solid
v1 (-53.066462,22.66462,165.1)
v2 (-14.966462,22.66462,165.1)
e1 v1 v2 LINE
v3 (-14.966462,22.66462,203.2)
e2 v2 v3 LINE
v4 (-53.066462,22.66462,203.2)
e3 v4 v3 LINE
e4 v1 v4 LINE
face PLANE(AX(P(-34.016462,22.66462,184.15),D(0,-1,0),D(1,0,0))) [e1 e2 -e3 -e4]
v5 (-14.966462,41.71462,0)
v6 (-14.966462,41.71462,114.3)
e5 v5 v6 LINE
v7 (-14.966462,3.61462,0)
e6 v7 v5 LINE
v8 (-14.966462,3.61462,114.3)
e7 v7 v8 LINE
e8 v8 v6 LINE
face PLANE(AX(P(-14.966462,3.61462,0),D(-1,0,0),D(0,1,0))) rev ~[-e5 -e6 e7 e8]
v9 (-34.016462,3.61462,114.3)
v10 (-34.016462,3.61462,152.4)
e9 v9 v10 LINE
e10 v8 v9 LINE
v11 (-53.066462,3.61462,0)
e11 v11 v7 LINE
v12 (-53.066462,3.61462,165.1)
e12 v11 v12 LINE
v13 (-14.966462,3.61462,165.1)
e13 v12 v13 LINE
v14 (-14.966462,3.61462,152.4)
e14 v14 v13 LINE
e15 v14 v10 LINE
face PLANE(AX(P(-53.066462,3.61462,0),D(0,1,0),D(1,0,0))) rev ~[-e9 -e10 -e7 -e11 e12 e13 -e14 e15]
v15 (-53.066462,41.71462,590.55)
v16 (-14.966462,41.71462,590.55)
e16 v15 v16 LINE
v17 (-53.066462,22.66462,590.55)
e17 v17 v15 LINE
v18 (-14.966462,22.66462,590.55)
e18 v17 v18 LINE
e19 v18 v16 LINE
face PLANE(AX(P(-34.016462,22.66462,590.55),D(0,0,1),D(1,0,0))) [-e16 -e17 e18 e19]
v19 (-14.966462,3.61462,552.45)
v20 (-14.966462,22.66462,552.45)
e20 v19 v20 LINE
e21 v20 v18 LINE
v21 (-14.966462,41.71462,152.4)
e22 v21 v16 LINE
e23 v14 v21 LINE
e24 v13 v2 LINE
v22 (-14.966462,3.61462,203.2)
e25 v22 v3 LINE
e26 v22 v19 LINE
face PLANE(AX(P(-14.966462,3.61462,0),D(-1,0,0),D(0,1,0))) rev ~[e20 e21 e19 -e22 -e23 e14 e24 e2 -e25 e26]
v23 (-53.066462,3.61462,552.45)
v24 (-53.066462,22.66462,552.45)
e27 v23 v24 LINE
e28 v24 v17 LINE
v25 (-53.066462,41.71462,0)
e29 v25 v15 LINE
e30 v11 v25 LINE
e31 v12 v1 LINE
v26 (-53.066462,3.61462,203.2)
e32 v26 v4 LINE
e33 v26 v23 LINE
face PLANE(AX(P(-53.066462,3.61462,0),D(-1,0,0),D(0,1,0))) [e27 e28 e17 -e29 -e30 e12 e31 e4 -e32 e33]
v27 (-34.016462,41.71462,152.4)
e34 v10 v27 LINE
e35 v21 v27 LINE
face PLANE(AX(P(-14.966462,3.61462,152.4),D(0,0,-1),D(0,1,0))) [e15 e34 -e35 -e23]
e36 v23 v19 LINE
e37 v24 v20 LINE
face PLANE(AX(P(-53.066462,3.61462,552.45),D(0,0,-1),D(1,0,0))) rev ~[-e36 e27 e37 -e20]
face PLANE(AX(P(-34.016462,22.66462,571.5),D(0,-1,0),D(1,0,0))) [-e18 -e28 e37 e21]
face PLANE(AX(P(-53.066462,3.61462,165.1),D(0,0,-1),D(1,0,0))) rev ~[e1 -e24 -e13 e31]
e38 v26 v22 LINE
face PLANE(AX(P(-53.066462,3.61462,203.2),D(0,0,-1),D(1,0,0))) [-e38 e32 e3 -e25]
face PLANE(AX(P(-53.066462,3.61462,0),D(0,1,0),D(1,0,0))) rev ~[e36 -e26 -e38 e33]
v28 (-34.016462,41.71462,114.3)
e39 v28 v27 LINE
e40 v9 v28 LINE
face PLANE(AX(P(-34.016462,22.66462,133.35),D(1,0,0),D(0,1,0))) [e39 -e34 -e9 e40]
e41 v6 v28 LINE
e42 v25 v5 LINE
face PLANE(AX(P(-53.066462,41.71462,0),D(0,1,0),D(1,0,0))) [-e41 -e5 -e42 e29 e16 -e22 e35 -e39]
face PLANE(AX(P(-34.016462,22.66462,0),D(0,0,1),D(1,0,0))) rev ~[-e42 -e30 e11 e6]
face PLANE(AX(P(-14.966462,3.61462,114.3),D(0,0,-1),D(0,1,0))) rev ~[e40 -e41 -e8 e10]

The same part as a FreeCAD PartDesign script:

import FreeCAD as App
import Part
import Sketcher

V = App.Vector
Q = App.Units.Quantity

doc = App.newDocument("Part")
body = doc.addObject("PartDesign::Body", "Body")

# Sketch on XY plane
sketch1 = body.newObject("Sketcher::SketchObject", "Sketch")
sketch1.AttachmentSupport = (doc.getObject("XY_Plane"), [""])
sketch1.MapMode = "FlatFace"
sketch1.addGeometry(Part.LineSegment(V(-53, 42, 0), V(-53, 4, 0)), False)
sketch1.addGeometry(Part.LineSegment(V(-53, 4, 0), V(-15, 4, 0)), False)
sketch1.addGeometry(Part.LineSegment(V(-15, 4, 0), V(-15, 42, 0)), False)
sketch1.addGeometry(Part.LineSegment(V(-15, 42, 0), V(-53, 42, 0)), False)
sketch1.addConstraint(Sketcher.Constraint("Coincident", 0, 2, 1, 1))
sketch1.addConstraint(Sketcher.Constraint("Coincident", 1, 2, 2, 1))
sketch1.addConstraint(Sketcher.Constraint("Coincident", 2, 2, 3, 1))
sketch1.addConstraint(Sketcher.Constraint("Coincident", 3, 2, 0, 1))
sketch1.addConstraint(Sketcher.Constraint("Vertical", 0))
sketch1.addConstraint(Sketcher.Constraint("Horizontal", 1))
sketch1.addConstraint(Sketcher.Constraint("Vertical", 2))
sketch1.addConstraint(Sketcher.Constraint("Horizontal", 3))
sketch1.addConstraint(Sketcher.Constraint("Equal", 3, 0))
sketch1.addConstraint(Sketcher.Constraint("DistanceX", 1, 1, 1, 2, Q("1.5 in")))
sketch1.addConstraint(Sketcher.Constraint("DistanceY", -1, 1, 0, 2, Q("3.61462 mm")))
sketch1.addConstraint(Sketcher.Constraint("DistanceX", 0, 2, -1, 1, Q("53.066462 mm")))
pad1 = body.newObject("PartDesign::Pad", "Pad")
pad1.Profile = sketch1
pad1.Length = Q("23.25 in")

# Sketch on XZ plane
sketch2 = body.newObject("Sketcher::SketchObject", "Sketch001")
sketch2.AttachmentSupport = (doc.getObject("XZ_Plane"), [""])
sketch2.MapMode = "FlatFace"
sketch2.AttachmentOffset = App.Placement(V(0, 0, -3.61462), App.Rotation())
sketch2.addGeometry(Part.LineSegment(V(-53, 591, 0), V(-53, 552, 0)), False)
sketch2.addGeometry(Part.LineSegment(V(-53, 552, 0), V(-15, 552, 0)), False)
sketch2.addGeometry(Part.LineSegment(V(-15, 552, 0), V(-15, 591, 0)), False)
sketch2.addGeometry(Part.LineSegment(V(-15, 591, 0), V(-53, 591, 0)), False)
sketch2.addConstraint(Sketcher.Constraint("Coincident", 0, 2, 1, 1))
sketch2.addConstraint(Sketcher.Constraint("Coincident", 1, 2, 2, 1))
sketch2.addConstraint(Sketcher.Constraint("Coincident", 2, 2, 3, 1))
sketch2.addConstraint(Sketcher.Constraint("Coincident", 3, 2, 0, 1))
sketch2.addConstraint(Sketcher.Constraint("Vertical", 0))
sketch2.addConstraint(Sketcher.Constraint("Horizontal", 1))
sketch2.addConstraint(Sketcher.Constraint("Vertical", 2))
sketch2.addConstraint(Sketcher.Constraint("Horizontal", 3))
sketch2.addConstraint(Sketcher.Constraint("Equal", 3, 0))
sketch2.addConstraint(Sketcher.Constraint("DistanceX", 1, 1, 1, 2, Q("1.5 in")))
sketch2.addConstraint(Sketcher.Constraint("DistanceY", -1, 1, 0, 2, Q("21.75 in")))
sketch2.addConstraint(Sketcher.Constraint("DistanceX", 0, 2, -1, 1, Q("53.066462 mm")))
pocket1 = body.newObject("PartDesign::Pocket", "Pocket")
pocket1.Profile = sketch2
pocket1.Length = Q("0.75 in")

# Sketch on YZ plane
sketch3 = body.newObject("Sketcher::SketchObject", "Sketch002")
sketch3.AttachmentSupport = (doc.getObject("YZ_Plane"), [""])
sketch3.MapMode = "FlatFace"
sketch3.AttachmentOffset = App.Placement(V(0, 0, -14.966462), App.Rotation())
sketch3.addGeometry(Part.LineSegment(V(4, 152, 0), V(4, 114, 0)), False)
sketch3.addGeometry(Part.LineSegment(V(4, 114, 0), V(42, 114, 0)), False)
sketch3.addGeometry(Part.LineSegment(V(42, 114, 0), V(42, 152, 0)), False)
sketch3.addGeometry(Part.LineSegment(V(42, 152, 0), V(4, 152, 0)), False)
sketch3.addConstraint(Sketcher.Constraint("Coincident", 0, 2, 1, 1))
sketch3.addConstraint(Sketcher.Constraint("Coincident", 1, 2, 2, 1))
sketch3.addConstraint(Sketcher.Constraint("Coincident", 2, 2, 3, 1))
sketch3.addConstraint(Sketcher.Constraint("Coincident", 3, 2, 0, 1))
sketch3.addConstraint(Sketcher.Constraint("Vertical", 0))
sketch3.addConstraint(Sketcher.Constraint("Horizontal", 1))
sketch3.addConstraint(Sketcher.Constraint("Vertical", 2))
sketch3.addConstraint(Sketcher.Constraint("Horizontal", 3))
sketch3.addConstraint(Sketcher.Constraint("Equal", 3, 0))
sketch3.addConstraint(Sketcher.Constraint("DistanceX", 1, 1, 1, 2, Q("1.5 in")))
sketch3.addConstraint(Sketcher.Constraint("DistanceY", -1, 1, 2, 2, Q("6 in")))
sketch3.addConstraint(Sketcher.Constraint("DistanceX", -1, 1, 0, 2, Q("3.61462 mm")))
pocket2 = body.newObject("PartDesign::Pocket", "Pocket001")
pocket2.Profile = sketch3
pocket2.Length = Q("0.75 in")

# Sketch on XZ plane
sketch4 = body.newObject("Sketcher::SketchObject", "Sketch003")
sketch4.AttachmentSupport = (doc.getObject("XZ_Plane"), [""])
sketch4.MapMode = "FlatFace"
sketch4.AttachmentOffset = App.Placement(V(0, 0, -3.61462), App.Rotation())
sketch4.addGeometry(Part.LineSegment(V(-53, 203, 0), V(-53, 165, 0)), False)
sketch4.addGeometry(Part.LineSegment(V(-53, 165, 0), V(-15, 165, 0)), False)
sketch4.addGeometry(Part.LineSegment(V(-15, 165, 0), V(-15, 203, 0)), False)
sketch4.addGeometry(Part.LineSegment(V(-15, 203, 0), V(-53, 203, 0)), False)
sketch4.addConstraint(Sketcher.Constraint("Coincident", 0, 2, 1, 1))
sketch4.addConstraint(Sketcher.Constraint("Coincident", 1, 2, 2, 1))
sketch4.addConstraint(Sketcher.Constraint("Coincident", 2, 2, 3, 1))
sketch4.addConstraint(Sketcher.Constraint("Coincident", 3, 2, 0, 1))
sketch4.addConstraint(Sketcher.Constraint("Vertical", 0))
sketch4.addConstraint(Sketcher.Constraint("Horizontal", 1))
sketch4.addConstraint(Sketcher.Constraint("Vertical", 2))
sketch4.addConstraint(Sketcher.Constraint("Horizontal", 3))
sketch4.addConstraint(Sketcher.Constraint("Equal", 3, 0))
sketch4.addConstraint(Sketcher.Constraint("DistanceX", 1, 1, 1, 2, Q("1.5 in")))
sketch4.addConstraint(Sketcher.Constraint("DistanceY", -1, 1, 2, 2, Q("8 in")))
sketch4.addConstraint(Sketcher.Constraint("DistanceX", 0, 2, -1, 1, Q("53.066462 mm")))
pocket3 = body.newObject("PartDesign::Pocket", "Pocket002")
pocket3.Profile = sketch4
pocket3.Length = Q("0.75 in")

doc.recompute()
